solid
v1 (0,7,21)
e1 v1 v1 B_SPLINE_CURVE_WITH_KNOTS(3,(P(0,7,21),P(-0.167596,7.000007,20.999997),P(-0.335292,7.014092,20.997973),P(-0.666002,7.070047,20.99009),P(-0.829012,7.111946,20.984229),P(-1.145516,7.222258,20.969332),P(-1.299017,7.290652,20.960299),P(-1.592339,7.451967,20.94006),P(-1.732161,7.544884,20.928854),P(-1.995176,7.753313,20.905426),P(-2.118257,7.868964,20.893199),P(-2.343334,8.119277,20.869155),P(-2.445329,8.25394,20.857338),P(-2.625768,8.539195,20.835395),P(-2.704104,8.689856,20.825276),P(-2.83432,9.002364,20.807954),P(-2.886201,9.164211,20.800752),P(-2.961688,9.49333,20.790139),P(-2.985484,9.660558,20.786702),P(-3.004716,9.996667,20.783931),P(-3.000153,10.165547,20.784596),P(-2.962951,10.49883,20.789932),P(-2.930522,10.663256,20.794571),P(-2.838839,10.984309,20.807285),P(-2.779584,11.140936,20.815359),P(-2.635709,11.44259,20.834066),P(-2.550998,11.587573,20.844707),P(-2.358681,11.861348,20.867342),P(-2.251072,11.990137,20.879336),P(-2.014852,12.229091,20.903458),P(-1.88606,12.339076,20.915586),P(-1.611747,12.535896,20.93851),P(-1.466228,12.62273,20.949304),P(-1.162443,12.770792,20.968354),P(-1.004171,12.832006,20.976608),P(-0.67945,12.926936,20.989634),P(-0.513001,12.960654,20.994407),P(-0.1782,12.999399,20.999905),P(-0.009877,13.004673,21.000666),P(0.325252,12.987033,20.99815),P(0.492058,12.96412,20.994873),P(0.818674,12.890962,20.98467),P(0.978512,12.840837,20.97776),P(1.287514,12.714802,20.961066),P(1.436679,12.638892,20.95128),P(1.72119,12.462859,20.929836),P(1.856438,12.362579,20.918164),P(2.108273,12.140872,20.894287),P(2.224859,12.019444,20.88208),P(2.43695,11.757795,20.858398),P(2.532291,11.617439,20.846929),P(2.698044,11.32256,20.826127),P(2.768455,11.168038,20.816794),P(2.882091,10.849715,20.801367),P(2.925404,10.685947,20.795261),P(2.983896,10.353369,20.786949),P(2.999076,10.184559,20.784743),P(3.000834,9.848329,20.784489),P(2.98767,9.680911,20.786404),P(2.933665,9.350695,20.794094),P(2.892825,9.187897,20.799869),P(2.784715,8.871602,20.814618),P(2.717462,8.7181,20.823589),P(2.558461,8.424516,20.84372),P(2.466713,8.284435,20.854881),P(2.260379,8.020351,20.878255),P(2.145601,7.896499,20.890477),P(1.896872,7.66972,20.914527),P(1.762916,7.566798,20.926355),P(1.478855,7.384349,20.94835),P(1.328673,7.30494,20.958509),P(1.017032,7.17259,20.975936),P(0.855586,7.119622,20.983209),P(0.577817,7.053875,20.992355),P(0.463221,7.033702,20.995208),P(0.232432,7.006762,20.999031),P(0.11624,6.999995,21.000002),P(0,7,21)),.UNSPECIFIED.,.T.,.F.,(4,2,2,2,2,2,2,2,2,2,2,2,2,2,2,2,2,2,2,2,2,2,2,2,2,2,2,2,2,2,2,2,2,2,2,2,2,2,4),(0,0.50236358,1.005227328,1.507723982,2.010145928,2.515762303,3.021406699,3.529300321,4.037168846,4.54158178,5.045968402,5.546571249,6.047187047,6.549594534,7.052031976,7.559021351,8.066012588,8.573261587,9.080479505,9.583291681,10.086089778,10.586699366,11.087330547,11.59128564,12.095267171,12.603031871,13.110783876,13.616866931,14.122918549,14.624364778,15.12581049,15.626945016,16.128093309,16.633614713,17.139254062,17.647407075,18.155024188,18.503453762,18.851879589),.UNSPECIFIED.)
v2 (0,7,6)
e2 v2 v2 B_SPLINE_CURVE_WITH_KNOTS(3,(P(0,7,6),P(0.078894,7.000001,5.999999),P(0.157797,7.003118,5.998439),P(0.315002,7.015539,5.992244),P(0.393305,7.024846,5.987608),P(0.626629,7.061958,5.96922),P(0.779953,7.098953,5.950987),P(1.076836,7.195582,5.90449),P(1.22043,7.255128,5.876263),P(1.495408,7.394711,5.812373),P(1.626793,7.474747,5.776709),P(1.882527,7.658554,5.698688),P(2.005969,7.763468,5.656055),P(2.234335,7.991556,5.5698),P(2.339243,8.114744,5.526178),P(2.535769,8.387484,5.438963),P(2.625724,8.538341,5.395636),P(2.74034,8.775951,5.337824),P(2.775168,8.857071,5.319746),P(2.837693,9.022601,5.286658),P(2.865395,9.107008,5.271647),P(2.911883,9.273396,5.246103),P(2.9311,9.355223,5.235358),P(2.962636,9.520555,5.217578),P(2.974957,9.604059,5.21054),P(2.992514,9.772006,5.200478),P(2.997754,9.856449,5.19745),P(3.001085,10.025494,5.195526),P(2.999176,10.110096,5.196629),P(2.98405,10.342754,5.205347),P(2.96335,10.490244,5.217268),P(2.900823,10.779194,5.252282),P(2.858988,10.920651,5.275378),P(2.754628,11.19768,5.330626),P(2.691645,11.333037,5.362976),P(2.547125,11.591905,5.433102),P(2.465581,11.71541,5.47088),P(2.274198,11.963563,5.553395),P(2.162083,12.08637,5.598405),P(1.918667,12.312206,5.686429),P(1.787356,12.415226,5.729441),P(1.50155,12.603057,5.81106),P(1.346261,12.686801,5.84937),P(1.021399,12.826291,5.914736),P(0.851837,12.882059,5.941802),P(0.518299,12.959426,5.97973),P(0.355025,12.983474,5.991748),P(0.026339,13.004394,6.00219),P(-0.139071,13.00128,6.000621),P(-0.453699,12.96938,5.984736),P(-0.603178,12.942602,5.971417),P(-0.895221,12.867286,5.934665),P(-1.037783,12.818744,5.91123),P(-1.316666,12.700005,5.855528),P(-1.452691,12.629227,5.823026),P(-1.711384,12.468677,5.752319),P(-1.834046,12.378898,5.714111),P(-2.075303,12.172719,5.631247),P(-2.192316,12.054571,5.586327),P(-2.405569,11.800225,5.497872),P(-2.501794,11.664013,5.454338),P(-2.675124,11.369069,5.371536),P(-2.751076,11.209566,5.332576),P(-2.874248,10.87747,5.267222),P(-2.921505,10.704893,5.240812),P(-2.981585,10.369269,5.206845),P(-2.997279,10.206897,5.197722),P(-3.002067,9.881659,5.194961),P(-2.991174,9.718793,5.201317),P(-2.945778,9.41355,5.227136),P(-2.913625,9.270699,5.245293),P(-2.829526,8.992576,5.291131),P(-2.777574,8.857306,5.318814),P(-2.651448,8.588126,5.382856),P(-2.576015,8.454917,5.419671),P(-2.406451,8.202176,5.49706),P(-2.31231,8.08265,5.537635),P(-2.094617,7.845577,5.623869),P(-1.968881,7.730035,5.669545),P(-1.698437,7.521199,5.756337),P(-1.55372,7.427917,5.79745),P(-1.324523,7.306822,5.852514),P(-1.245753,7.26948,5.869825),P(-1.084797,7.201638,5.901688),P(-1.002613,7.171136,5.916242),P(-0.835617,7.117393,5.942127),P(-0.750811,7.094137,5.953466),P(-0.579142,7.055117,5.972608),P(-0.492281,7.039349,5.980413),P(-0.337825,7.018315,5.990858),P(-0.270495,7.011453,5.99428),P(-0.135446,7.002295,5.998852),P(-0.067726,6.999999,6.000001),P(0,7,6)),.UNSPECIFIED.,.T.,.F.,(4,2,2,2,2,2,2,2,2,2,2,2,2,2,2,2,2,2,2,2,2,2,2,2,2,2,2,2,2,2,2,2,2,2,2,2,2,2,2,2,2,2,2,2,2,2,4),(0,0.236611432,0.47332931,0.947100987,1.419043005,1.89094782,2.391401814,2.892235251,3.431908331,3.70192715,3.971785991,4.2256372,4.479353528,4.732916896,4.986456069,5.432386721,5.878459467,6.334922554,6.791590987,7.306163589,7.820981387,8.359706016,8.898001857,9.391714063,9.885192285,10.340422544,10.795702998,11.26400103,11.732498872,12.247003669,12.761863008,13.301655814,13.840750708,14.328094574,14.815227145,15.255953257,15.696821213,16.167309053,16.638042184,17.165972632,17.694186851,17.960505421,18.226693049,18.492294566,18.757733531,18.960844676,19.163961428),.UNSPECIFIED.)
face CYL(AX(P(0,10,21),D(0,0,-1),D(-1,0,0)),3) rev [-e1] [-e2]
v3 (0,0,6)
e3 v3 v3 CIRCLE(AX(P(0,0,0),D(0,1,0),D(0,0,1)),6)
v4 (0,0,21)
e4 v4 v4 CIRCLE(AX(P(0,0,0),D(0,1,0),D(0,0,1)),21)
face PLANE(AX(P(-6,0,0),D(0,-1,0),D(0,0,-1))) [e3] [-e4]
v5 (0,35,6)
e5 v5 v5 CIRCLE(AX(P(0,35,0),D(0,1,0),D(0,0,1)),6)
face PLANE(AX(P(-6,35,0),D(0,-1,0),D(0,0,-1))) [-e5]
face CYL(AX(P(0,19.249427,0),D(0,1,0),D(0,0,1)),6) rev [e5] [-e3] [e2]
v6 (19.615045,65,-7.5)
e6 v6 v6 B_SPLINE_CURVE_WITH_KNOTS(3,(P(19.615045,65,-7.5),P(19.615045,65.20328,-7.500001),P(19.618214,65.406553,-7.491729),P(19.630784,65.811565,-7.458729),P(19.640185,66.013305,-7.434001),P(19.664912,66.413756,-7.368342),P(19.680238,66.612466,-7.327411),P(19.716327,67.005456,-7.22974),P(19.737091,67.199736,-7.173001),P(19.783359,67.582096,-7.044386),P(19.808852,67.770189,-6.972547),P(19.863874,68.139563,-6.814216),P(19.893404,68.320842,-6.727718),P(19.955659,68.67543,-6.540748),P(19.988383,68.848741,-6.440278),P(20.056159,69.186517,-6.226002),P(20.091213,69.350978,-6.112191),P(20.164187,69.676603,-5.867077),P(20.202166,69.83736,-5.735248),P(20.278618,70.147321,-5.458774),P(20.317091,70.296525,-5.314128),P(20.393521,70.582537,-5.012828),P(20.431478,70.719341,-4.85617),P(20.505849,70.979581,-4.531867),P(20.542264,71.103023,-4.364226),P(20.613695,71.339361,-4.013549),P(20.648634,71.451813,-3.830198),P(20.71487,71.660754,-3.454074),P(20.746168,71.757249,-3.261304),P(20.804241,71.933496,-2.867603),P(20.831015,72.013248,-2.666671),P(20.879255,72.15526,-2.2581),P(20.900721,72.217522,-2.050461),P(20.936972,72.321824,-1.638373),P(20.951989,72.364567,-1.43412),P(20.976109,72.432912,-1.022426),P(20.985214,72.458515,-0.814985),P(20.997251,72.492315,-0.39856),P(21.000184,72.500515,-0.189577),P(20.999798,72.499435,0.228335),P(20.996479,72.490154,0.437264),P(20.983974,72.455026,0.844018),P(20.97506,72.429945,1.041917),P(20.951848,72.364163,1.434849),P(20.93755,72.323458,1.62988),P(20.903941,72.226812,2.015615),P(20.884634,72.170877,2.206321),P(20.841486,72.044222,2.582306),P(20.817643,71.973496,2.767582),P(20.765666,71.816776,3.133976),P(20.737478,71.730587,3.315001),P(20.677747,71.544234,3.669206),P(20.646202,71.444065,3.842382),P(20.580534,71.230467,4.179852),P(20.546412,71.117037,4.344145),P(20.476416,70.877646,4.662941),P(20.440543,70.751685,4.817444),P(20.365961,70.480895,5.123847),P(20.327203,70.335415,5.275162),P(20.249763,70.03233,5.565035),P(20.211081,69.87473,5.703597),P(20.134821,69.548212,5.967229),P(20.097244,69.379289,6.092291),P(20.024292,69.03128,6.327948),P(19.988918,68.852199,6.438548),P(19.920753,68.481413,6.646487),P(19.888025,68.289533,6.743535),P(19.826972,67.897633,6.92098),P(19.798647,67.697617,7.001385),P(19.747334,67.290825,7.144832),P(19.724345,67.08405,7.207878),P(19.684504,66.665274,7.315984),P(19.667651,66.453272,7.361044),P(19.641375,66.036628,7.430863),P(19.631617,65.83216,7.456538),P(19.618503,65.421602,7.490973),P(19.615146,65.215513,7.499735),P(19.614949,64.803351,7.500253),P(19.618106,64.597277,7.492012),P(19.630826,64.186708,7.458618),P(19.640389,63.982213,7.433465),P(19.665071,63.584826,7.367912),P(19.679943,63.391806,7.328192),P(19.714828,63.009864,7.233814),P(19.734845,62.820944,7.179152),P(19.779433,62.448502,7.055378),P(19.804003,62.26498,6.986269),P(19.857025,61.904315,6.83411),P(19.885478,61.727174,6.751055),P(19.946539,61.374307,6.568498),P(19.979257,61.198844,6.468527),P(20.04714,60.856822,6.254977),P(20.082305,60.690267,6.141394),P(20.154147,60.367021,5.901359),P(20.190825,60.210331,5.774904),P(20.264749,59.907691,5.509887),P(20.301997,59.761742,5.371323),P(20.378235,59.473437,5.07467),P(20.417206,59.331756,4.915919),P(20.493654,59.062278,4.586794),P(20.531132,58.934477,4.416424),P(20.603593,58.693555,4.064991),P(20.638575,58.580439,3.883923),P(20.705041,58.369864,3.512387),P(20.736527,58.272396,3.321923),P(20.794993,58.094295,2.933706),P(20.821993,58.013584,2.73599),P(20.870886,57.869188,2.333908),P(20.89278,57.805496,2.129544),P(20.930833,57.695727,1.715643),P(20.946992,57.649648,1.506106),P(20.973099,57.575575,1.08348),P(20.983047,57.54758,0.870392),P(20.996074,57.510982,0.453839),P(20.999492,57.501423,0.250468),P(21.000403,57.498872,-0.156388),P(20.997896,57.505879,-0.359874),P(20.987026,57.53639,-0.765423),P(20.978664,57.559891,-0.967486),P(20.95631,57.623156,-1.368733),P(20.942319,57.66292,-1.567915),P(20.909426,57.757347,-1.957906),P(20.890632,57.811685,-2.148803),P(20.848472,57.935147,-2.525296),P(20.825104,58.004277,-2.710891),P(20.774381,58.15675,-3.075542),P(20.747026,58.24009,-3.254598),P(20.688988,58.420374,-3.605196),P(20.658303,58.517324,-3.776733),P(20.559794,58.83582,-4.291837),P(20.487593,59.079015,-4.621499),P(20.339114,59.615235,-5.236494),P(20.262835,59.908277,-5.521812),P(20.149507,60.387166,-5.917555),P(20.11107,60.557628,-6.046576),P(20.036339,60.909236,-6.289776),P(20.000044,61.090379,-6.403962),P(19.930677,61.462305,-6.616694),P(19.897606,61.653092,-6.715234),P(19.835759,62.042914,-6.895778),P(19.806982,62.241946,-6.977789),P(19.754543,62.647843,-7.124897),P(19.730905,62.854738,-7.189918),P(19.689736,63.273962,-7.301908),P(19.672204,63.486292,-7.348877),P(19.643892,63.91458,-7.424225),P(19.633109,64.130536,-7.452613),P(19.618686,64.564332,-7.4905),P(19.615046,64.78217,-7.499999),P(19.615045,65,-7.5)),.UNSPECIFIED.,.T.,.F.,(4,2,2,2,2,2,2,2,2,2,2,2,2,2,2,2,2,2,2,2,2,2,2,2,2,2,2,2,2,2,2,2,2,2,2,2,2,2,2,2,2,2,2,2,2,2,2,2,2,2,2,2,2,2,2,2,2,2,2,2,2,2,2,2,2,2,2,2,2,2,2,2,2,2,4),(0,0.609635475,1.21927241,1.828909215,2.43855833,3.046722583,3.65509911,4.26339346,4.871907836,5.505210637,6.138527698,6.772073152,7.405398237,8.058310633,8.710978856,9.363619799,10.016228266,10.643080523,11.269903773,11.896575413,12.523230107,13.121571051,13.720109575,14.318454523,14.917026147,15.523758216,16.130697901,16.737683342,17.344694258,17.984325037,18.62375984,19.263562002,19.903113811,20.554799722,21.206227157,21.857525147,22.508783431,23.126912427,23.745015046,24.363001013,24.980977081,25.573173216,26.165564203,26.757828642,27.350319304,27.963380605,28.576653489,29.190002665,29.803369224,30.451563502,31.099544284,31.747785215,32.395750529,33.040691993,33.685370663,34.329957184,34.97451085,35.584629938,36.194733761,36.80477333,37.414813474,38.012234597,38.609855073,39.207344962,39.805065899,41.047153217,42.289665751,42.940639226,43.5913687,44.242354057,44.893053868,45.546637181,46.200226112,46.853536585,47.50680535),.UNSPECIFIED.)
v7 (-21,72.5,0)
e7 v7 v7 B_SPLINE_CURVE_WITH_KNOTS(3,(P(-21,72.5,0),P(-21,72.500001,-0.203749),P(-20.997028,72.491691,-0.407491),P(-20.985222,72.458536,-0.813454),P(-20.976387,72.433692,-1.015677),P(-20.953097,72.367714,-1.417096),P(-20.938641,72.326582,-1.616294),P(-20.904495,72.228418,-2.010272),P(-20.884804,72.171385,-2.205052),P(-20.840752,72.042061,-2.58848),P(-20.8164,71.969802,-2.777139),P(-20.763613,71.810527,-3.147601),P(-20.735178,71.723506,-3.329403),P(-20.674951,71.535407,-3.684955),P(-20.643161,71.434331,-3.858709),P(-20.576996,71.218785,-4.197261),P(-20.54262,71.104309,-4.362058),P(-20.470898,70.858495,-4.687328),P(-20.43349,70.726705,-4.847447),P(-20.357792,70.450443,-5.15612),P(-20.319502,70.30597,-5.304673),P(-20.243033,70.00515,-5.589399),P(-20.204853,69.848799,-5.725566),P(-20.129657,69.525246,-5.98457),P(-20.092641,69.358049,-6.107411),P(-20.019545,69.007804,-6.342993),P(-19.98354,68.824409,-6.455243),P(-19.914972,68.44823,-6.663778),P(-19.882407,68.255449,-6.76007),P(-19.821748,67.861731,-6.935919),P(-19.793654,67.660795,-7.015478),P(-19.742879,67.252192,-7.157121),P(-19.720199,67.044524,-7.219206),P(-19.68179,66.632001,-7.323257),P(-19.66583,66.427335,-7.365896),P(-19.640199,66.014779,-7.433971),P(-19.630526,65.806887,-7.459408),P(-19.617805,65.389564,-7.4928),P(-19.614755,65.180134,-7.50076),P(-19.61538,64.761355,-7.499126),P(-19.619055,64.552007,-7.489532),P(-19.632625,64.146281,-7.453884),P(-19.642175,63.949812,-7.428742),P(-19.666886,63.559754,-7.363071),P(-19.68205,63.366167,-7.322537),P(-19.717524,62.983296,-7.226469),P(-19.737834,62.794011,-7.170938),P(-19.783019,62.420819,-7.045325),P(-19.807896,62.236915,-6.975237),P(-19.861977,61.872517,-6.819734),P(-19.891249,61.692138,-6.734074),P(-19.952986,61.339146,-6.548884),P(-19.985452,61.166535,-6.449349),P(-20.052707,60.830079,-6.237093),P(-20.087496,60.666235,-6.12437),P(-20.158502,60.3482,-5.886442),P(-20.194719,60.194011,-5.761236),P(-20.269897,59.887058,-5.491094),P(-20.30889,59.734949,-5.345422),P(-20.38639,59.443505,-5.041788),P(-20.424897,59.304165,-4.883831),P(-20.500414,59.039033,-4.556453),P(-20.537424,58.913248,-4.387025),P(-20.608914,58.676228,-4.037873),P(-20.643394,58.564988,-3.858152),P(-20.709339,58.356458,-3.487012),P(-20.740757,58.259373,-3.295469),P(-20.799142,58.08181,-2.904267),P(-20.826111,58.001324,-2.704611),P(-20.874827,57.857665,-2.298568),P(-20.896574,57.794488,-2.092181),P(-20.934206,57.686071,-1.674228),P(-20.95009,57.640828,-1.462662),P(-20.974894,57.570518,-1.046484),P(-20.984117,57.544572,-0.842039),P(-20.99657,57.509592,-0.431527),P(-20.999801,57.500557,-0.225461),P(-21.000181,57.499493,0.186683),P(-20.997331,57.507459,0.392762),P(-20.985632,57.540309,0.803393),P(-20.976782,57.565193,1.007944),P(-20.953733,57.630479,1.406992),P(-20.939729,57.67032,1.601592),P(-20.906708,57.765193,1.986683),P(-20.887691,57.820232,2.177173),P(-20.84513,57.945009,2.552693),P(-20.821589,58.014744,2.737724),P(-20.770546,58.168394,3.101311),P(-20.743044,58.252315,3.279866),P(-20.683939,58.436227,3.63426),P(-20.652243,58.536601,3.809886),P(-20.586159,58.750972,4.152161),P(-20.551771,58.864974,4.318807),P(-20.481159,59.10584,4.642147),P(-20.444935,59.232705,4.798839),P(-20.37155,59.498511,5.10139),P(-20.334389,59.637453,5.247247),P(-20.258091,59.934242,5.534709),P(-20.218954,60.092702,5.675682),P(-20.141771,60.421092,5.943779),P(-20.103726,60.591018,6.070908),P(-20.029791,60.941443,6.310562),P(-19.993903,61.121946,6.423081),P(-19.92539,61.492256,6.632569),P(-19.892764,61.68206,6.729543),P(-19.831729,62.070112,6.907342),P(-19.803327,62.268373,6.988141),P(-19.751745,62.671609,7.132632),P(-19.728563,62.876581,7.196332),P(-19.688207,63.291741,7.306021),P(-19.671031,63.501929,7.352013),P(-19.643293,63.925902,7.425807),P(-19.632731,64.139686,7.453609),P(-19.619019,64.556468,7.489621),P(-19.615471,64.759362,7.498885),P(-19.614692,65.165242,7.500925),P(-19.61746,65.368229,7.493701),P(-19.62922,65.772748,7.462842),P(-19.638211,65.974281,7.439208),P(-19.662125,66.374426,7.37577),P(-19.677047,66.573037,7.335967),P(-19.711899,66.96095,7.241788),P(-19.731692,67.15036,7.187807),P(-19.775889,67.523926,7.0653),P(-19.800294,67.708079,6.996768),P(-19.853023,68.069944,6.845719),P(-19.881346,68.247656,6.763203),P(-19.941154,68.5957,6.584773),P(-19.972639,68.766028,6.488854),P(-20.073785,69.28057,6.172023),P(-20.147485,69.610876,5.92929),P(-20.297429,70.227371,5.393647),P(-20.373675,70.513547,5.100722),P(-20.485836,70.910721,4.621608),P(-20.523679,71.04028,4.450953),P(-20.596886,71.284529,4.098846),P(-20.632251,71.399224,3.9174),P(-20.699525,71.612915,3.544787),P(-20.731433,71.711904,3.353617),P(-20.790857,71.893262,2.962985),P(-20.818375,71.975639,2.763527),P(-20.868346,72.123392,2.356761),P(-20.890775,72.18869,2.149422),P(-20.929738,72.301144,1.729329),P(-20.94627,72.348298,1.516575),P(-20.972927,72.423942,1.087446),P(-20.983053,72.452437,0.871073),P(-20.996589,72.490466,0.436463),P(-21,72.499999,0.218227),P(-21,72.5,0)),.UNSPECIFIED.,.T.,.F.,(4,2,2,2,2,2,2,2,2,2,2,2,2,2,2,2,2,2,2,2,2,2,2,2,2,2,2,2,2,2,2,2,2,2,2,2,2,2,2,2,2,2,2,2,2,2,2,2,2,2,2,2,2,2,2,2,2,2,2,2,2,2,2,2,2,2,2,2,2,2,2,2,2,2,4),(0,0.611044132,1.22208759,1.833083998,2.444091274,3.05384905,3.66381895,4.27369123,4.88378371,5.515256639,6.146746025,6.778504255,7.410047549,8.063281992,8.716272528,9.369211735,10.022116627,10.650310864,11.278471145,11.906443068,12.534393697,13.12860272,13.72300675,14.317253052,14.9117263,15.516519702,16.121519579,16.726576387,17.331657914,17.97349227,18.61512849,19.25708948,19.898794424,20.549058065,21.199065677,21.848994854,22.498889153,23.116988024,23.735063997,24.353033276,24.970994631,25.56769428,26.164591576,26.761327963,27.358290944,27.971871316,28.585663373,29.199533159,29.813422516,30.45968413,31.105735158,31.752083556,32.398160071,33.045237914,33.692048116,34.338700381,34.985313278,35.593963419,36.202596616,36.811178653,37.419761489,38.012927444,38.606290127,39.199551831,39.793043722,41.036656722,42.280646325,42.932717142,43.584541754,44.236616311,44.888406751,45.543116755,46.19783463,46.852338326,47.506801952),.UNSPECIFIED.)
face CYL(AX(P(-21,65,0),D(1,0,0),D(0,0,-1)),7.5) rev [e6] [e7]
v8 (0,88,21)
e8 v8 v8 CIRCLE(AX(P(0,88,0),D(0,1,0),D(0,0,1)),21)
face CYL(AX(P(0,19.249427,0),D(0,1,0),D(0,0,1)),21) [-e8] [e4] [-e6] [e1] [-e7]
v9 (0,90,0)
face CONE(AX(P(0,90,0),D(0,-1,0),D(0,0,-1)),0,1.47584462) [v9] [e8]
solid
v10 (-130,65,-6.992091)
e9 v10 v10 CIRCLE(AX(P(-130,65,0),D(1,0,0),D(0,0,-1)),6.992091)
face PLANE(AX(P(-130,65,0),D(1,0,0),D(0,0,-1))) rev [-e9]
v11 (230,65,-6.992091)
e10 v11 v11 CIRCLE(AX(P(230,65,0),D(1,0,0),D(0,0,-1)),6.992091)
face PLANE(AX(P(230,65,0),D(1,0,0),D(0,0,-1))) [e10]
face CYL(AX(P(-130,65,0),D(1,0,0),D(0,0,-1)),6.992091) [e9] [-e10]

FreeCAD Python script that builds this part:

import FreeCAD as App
import Part
import Sketcher

doc = App.newDocument("Part")
params = doc.addObject("Spreadsheet::Sheet", "Params")
for row, (alias, value) in enumerate([
    ("sketch1_width", "15 mm"),
    ("sketch1_width2", "6 mm"),
    ("sketch1_height", "35 mm"),
    ("sketch1_height2", "55 mm"),
    ("sketch1_height3", "88 mm"),
    ("revolution_angle", "360 deg"),
    ("sketch2_diameter", "15 mm"),
    ("sketch3_diameter", "6 mm"),
    ("pad1_length", "230 mm"),
    ("pad1_length2", "130 mm"),
], start=1):
    params.set(f"A{row}", alias)
    params.set(f"B{row}", "=" + value)
    params.setAlias(f"B{row}", alias)

body = doc.addObject("PartDesign::Body", "Body")

# Sketch on XY plane
sketch1 = body.newObject("Sketcher::SketchObject", "Sketch")
sketch1.AttachmentSupport = (doc.getObject("XY_Plane"), [""])
sketch1.MapMode = "FlatFace"
sketch1.addGeometry([
    Part.LineSegment(App.Vector(-21, 0, 0), App.Vector(-6, 0, 0)),  # 0
    Part.LineSegment(App.Vector(-6, 0, 0), App.Vector(-6, 35, 0)),  # 1
    Part.LineSegment(App.Vector(-6, 35, 0), App.Vector(0, 35, 0)),  # 2
    Part.LineSegment(App.Vector(0, 35, 0), App.Vector(0, 90, 0)),  # 3
    Part.LineSegment(App.Vector(0, 90, 0), App.Vector(-21, 88, 0)),  # 4
    Part.LineSegment(App.Vector(-21, 88, 0), App.Vector(-21, 0, 0)),  # 5
], False)
sketch1.addConstraint([
    Sketcher.Constraint("Coincident", 0, 2, 1, 1),
    Sketcher.Constraint("Coincident", 1, 2, 2, 1),
    Sketcher.Constraint("Coincident", 2, 2, 3, 1),
    Sketcher.Constraint("Coincident", 3, 2, 4, 1),
    Sketcher.Constraint("Coincident", 4, 2, 5, 1),
    Sketcher.Constraint("Coincident", 5, 2, 0, 1),
    Sketcher.Constraint("Horizontal", 0),
    Sketcher.Constraint("Vertical", 1),
    Sketcher.Constraint("Horizontal", 2),
    Sketcher.Constraint("Vertical", 3),
    Sketcher.Constraint("Vertical", 5),
    Sketcher.Constraint("PointOnObject", 0, 2, -1),
    Sketcher.Constraint("PointOnObject", 2, 2, -2),
    Sketcher.Constraint("DistanceX", 0, 1, 0, 2, 15.0),
    Sketcher.Constraint("DistanceX", 2, 1, 2, 2, 6.0),
    Sketcher.Constraint("DistanceY", 1, 1, 1, 2, 35.0),
    Sketcher.Constraint("DistanceY", 3, 1, 3, 2, 55.0),
    Sketcher.Constraint("DistanceY", 5, 2, 5, 1, 88.0),
])
sketch1.setExpression("Constraints[13]", "Params.sketch1_width")
sketch1.setExpression("Constraints[14]", "Params.sketch1_width2")
sketch1.setExpression("Constraints[15]", "Params.sketch1_height")
sketch1.setExpression("Constraints[16]", "Params.sketch1_height2")
sketch1.setExpression("Constraints[17]", "Params.sketch1_height3")
revolution = body.newObject("PartDesign::Revolution", "Revolution")
revolution.Profile = sketch1
revolution.ReferenceAxis = (sketch1, ["V_Axis"])
revolution.setExpression("Angle", "Params.revolution_angle")

# Sketch on YZ plane
sketch2 = body.newObject("Sketcher::SketchObject", "Sketch001")
sketch2.AttachmentSupport = (doc.getObject("YZ_Plane"), [""])
sketch2.MapMode = "FlatFace"
sketch2.addGeometry(Part.Circle(App.Vector(65, 0, 0), App.Vector(0, 0, 1), 8), False)
sketch2.addConstraint([
    Sketcher.Constraint("PointOnObject", 0, 3, -1),
    Sketcher.Constraint("Diameter", 0, 15.0),
    Sketcher.Constraint("DistanceX", -1, 1, 0, 3, 65.0),
])
sketch2.setExpression("Constraints[1]", "Params.sketch2_diameter")
pocket1 = body.newObject("PartDesign::Pocket", "Pocket")
pocket1.Profile = sketch2
pocket1.Type = "ThroughAll"
pocket1.Midplane = True

# Sketch on XY plane
sketch3 = body.newObject("Sketcher::SketchObject", "Sketch002")
sketch3.AttachmentSupport = (doc.getObject("XY_Plane"), [""])
sketch3.MapMode = "FlatFace"
sketch3.addGeometry(Part.Circle(App.Vector(0, 10, 0), App.Vector(0, 0, 1), 3), False)
sketch3.addConstraint([
    Sketcher.Constraint("PointOnObject", 0, 3, -2),
    Sketcher.Constraint("Diameter", 0, 6.0),
    Sketcher.Constraint("DistanceY", -1, 1, 0, 3, 10.0),
])
sketch3.setExpression("Constraints[1]", "Params.sketch3_diameter")
pocket2 = body.newObject("PartDesign::Pocket", "Pocket001")
pocket2.Profile = sketch3
pocket2.Type = "ThroughAll"
pocket2.Reversed = True
body2 = doc.addObject("PartDesign::Body", "Body001")

# Sketch on YZ plane
sketch4 = body2.newObject("Sketcher::SketchObject", "Sketch003")
sketch4.AttachmentSupport = (doc.getObject("YZ_Plane001"), [""])
sketch4.MapMode = "FlatFace"
sketch4.addGeometry(Part.Circle(App.Vector(65, 0, 0), App.Vector(0, 0, 1), 7), False)
sketch4.addConstraint([
    Sketcher.Constraint("PointOnObject", 0, 3, -1),
    Sketcher.Constraint("DistanceX", -1, 1, 0, 3, 65.0),
    Sketcher.Constraint("Diameter", 0, 13.984181),
])
pad1 = body2.newObject("PartDesign::Pad", "Pad")
pad1.Profile = sketch4
pad1.Type = "TwoLengths"
pad1.setExpression("Length", "Params.pad1_length")
pad1.setExpression("Length2", "Params.pad1_length2")

doc.recompute()
